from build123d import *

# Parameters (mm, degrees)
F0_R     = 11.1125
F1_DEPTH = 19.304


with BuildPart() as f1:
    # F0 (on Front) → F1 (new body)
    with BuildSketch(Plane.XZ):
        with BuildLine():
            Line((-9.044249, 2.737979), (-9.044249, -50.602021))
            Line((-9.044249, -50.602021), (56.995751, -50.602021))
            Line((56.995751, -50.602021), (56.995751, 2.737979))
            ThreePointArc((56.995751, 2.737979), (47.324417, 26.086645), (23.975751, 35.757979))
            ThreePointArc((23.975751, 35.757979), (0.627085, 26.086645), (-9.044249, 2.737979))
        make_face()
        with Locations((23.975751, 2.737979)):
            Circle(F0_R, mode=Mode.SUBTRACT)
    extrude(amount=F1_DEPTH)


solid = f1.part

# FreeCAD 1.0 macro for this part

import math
import FreeCAD as App
import Part
import Sketcher
from FreeCAD import Vector
Q = App.Units.Quantity

doc = App.newDocument("Part")
body = doc.addObject("PartDesign::Body", "Body")

# Sketch on XZ plane
sketch1 = body.newObject("Sketcher::SketchObject", "Sketch")
sketch1.AttachmentSupport = (doc.getObject("XZ_Plane"), [""])
sketch1.MapMode = "FlatFace"
sketch1.addGeometry([
    Part.LineSegment(Vector(-9.044249, 2.737979, 0), Vector(-9.044249, -50.602021, 0)),  # 0
    Part.LineSegment(Vector(-9.044249, -50.602021, 0), Vector(56.995751, -50.602021, 0)),  # 1
    Part.LineSegment(Vector(56.995751, -50.602021, 0), Vector(56.995751, 2.737979, 0)),  # 2
    Part.ArcOfCircle(Part.Circle(Vector(23.975751, 2.737979, 0), Vector(0, 0, 1), 33.02), math.radians(-0.000001), math.radians(90.000001)),  # 3
    Part.ArcOfCircle(Part.Circle(Vector(23.975751, 2.737979, 0), Vector(0, 0, 1), 33.02), math.radians(89.999999), math.radians(180.000001)),  # 4
    Part.Circle(Vector(23.975751, 2.737979, 0), Vector(0, 0, 1), 11.1125),  # 5
], False)
sketch1.addConstraint([
    Sketcher.Constraint("Coincident", 0, 2, 1, 1),
    Sketcher.Constraint("Coincident", 1, 2, 2, 1),
    Sketcher.Constraint("Tangent", 2, 2, 3, 1),
    Sketcher.Constraint("Tangent", 3, 2, 4, 1),
    Sketcher.Constraint("Tangent", 4, 2, 0, 1),
    Sketcher.Constraint("Vertical", 0),
    Sketcher.Constraint("Horizontal", 1),
    Sketcher.Constraint("Vertical", 2),
    Sketcher.Constraint("Coincident", 5, 3, 3, 3),
    Sketcher.Constraint("Equal", 3, 4),
    Sketcher.Constraint("Vertical", 5, 3, 3, 2),
    Sketcher.Constraint("Radius", 3, Q("1.3 in")),
    Sketcher.Constraint("Diameter", 5, Q("0.875 in")),
    Sketcher.Constraint("DistanceY", 0, 2, 0, 1, Q("2.1 in")),
    Sketcher.Constraint("DistanceX", -1, 1, 3, 3, 23.975751),
    Sketcher.Constraint("DistanceY", -1, 1, 3, 3, 2.737979),
])
pad1 = body.newObject("PartDesign::Pad", "Pad")
pad1.Profile = sketch1
pad1.Length = Q("0.76 in")

doc.recompute()
